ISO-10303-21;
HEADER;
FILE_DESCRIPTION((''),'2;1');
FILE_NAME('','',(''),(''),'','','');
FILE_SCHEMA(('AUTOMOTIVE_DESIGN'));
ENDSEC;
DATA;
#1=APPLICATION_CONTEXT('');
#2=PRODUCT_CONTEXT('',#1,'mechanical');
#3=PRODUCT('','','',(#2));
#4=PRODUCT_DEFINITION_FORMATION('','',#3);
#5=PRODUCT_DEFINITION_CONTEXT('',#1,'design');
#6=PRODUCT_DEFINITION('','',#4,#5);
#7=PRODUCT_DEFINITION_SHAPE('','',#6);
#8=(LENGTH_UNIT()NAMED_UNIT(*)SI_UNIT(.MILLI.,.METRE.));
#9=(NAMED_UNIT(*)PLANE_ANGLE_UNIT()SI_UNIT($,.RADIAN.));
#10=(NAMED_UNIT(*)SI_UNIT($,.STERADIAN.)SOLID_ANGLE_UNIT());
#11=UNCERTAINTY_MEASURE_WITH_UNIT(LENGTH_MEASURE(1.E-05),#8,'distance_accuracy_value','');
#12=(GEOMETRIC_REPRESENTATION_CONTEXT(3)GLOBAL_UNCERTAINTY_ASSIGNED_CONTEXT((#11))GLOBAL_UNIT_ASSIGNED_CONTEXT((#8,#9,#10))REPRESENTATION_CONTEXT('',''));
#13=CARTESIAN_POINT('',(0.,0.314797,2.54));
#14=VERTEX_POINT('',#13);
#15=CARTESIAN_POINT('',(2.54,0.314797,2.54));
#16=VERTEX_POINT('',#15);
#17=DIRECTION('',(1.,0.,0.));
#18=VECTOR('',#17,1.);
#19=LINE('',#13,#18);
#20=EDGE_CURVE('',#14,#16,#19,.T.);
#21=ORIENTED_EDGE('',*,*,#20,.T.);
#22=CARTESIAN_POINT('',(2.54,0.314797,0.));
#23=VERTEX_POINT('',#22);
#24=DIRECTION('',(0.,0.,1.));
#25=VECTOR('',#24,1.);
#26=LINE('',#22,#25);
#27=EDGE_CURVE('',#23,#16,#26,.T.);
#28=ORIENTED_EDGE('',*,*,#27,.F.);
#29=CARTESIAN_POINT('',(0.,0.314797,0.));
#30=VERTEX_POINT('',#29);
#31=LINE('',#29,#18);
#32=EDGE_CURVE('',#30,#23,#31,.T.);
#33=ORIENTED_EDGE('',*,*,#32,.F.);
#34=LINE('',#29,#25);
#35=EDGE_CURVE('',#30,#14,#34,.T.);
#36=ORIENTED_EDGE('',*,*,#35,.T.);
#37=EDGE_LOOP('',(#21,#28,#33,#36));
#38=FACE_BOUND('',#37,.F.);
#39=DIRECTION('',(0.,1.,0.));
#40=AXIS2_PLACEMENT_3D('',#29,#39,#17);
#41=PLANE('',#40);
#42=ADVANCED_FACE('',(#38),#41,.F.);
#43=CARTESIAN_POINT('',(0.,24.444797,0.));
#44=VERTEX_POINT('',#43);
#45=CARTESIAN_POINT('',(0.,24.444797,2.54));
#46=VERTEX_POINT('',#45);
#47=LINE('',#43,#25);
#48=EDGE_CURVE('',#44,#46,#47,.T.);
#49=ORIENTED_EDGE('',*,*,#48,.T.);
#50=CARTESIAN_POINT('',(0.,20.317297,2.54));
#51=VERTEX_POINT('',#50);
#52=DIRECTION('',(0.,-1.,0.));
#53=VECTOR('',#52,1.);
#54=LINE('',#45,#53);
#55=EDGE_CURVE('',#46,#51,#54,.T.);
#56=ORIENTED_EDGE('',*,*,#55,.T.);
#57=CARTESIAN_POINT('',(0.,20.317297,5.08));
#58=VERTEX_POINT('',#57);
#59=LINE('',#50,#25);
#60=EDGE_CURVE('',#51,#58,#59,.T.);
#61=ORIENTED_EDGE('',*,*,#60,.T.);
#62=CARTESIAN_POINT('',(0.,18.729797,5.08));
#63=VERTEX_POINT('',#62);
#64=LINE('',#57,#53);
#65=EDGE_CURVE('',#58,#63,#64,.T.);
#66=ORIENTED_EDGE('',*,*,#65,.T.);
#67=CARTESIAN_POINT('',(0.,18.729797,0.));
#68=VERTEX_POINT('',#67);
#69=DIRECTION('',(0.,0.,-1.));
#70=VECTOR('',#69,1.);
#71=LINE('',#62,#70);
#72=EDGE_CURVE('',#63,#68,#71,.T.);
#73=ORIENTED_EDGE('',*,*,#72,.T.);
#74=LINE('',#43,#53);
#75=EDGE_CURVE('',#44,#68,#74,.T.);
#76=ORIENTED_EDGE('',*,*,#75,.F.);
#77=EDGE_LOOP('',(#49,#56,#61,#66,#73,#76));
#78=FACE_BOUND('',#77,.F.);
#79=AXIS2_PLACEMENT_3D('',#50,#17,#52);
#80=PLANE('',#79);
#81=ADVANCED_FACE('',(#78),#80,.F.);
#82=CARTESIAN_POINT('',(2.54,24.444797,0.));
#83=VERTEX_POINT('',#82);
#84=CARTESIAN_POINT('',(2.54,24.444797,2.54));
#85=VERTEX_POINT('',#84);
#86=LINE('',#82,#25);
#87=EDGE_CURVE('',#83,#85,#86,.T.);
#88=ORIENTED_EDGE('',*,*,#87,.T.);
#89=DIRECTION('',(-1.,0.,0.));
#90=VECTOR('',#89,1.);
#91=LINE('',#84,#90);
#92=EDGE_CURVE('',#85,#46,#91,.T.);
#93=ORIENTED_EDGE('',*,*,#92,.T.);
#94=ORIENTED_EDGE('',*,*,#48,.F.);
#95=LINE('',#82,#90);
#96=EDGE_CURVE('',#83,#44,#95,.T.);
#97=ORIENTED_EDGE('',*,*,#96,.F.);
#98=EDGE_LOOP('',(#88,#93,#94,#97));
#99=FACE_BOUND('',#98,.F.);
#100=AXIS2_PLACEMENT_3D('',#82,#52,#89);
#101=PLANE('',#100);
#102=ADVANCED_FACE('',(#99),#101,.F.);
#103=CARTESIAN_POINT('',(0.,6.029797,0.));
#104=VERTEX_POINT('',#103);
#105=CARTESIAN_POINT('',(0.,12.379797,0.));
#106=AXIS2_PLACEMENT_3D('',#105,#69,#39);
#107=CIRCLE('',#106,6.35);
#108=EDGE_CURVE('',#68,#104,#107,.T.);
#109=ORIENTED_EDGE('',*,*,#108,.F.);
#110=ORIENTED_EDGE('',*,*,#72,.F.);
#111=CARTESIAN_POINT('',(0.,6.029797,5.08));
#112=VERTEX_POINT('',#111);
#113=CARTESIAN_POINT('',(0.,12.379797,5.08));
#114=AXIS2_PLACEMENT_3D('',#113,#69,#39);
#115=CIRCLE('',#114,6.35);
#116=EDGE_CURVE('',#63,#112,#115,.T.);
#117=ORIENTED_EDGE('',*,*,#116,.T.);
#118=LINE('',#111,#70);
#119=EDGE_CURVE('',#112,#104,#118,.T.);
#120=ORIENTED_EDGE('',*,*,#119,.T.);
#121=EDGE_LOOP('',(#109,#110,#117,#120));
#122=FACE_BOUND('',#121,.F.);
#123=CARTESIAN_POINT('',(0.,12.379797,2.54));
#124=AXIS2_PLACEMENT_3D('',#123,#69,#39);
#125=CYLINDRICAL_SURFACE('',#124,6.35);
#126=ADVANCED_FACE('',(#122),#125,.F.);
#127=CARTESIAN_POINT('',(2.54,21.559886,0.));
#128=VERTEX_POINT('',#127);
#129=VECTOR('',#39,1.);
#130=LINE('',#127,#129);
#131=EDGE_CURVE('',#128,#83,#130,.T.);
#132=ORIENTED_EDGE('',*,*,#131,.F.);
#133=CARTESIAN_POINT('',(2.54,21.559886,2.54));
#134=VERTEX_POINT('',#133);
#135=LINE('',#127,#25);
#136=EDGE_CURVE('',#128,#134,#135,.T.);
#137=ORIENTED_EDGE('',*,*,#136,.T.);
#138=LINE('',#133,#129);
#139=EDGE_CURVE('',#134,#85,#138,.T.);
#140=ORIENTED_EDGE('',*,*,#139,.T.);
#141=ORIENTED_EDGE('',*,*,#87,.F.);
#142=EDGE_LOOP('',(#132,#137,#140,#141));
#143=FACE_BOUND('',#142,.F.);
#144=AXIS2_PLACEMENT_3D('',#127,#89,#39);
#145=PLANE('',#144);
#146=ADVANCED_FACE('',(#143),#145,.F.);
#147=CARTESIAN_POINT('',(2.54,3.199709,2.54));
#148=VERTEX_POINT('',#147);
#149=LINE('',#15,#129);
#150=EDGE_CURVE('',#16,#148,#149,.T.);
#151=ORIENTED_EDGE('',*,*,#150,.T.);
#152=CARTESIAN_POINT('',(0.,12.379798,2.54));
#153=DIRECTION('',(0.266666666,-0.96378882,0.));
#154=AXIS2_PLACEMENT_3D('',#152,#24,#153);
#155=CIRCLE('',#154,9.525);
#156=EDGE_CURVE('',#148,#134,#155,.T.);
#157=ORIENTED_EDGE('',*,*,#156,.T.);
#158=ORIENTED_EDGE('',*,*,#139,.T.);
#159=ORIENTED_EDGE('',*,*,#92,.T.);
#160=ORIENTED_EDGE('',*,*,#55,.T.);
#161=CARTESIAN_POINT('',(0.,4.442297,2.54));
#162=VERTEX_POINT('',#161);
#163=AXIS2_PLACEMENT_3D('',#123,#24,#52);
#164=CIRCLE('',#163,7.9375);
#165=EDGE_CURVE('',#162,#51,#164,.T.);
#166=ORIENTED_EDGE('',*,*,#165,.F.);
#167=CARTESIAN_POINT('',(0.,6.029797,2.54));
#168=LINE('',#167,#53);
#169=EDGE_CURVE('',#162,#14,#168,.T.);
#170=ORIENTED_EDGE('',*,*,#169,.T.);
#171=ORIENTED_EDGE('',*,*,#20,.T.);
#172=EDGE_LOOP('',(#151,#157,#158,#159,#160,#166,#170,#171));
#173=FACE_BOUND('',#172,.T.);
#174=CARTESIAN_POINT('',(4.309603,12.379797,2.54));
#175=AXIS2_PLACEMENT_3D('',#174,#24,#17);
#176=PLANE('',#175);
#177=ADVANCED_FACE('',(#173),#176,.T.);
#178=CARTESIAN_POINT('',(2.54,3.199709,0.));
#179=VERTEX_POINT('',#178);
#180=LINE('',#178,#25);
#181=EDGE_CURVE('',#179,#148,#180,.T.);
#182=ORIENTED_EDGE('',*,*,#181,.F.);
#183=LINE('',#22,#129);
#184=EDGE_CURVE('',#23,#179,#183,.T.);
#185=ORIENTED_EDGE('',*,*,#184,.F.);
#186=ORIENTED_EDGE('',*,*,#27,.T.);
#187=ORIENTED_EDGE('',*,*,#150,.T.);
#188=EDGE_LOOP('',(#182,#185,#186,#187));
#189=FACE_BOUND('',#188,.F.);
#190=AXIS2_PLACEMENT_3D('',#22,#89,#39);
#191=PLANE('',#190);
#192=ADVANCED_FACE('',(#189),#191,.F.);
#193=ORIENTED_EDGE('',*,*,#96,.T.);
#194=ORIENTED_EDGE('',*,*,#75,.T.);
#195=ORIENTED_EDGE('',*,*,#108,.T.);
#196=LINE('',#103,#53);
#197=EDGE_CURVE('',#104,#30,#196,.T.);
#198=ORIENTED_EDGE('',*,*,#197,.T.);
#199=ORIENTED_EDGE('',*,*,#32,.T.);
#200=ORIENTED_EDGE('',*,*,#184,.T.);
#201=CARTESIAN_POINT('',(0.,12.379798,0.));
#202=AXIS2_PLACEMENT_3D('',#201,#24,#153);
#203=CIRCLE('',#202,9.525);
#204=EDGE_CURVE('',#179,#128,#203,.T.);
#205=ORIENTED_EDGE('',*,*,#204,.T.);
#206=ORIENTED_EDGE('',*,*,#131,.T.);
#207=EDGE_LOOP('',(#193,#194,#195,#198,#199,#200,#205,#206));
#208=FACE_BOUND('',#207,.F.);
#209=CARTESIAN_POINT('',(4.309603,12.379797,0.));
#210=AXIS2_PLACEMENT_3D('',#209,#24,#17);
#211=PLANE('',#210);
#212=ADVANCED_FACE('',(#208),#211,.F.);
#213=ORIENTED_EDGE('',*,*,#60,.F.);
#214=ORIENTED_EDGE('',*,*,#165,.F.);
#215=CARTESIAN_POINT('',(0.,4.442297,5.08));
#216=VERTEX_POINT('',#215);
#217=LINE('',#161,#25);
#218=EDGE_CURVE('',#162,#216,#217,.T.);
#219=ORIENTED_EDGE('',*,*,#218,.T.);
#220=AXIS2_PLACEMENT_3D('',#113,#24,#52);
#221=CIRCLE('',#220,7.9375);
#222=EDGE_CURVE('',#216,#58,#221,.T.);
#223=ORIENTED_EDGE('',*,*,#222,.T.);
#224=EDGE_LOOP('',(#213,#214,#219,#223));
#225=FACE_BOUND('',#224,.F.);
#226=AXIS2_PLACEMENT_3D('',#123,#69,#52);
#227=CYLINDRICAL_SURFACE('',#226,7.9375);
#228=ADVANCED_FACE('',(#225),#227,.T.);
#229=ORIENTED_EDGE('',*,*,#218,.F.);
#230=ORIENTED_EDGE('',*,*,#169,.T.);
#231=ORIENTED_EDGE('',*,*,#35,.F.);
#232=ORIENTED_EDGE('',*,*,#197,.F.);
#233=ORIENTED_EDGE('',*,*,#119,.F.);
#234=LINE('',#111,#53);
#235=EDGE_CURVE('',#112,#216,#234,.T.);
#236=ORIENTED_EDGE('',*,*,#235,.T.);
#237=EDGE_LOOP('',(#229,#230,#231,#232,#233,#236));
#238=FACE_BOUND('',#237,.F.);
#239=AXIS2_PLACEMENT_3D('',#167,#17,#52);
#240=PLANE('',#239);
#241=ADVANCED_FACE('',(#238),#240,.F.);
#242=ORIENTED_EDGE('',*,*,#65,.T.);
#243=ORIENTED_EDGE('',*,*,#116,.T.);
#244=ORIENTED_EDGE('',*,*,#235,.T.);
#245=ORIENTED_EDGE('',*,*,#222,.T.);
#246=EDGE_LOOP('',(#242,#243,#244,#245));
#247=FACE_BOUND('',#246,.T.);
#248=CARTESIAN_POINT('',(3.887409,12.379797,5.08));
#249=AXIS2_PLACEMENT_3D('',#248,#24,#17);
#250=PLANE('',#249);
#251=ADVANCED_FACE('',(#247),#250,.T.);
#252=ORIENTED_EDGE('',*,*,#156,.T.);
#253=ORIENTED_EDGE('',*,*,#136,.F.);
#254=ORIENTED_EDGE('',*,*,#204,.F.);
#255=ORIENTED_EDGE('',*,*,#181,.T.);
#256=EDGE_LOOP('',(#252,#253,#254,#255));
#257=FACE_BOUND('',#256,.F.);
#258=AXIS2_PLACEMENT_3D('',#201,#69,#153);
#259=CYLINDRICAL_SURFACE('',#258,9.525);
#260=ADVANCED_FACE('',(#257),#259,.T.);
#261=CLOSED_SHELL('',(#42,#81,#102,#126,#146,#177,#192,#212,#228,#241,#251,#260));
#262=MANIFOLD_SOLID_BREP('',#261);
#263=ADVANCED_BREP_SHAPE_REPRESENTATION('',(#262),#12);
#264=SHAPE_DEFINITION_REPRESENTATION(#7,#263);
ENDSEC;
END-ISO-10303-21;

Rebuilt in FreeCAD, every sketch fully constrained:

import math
import FreeCAD as App
import Part
import Sketcher
from FreeCAD import Vector
Q = App.Units.Quantity

doc = App.newDocument("Part")
body = doc.addObject("PartDesign::Body", "Body")

sketch1 = doc.addObject("Sketcher::SketchObject", "Sketch")
body.addObject(sketch1)
sketch1.AttachmentSupport = (doc.XY_Plane, [""])
sketch1.MapMode = "FlatFace"
sketch1.addGeometry([
    Part.LineSegment(Vector(0, 6.029797, 0), Vector(0, 0.314797, 0)),
    Part.LineSegment(Vector(0, 0.314797, 0), Vector(2.54, 0.314797, 0)),
    Part.LineSegment(Vector(2.54, 0.314797, 0), Vector(2.54, 3.199709, 0)),
    Part.ArcOfCircle(Part.Circle(Vector(0, 12.379798, 0), Vector(0, 0, 1), 9.525), math.radians(-74.53399), math.radians(74.53399)),
    Part.LineSegment(Vector(2.54, 21.559886, 0), Vector(2.54, 24.444797, 0)),
    Part.LineSegment(Vector(2.54, 24.444797, 0), Vector(0, 24.444797, 0)),
    Part.LineSegment(Vector(0, 24.444797, 0), Vector(0, 18.729797, 0)),
    Part.ArcOfCircle(Part.Circle(Vector(0, 12.379797, 0), Vector(0, 0, 1), 6.35), math.radians(-90), math.radians(90)),
], False)
sketch1.addConstraint([
    Sketcher.Constraint("Coincident", 0, 2, 1, 1),
    Sketcher.Constraint("Coincident", 1, 2, 2, 1),
    Sketcher.Constraint("Coincident", 2, 2, 3, 1),
    Sketcher.Constraint("Coincident", 3, 2, 4, 1),
    Sketcher.Constraint("Coincident", 4, 2, 5, 1),
    Sketcher.Constraint("Coincident", 5, 2, 6, 1),
    Sketcher.Constraint("Coincident", 6, 2, 7, 2),
    Sketcher.Constraint("Coincident", 7, 1, 0, 1),
    Sketcher.Constraint("Vertical", 0),
    Sketcher.Constraint("Horizontal", 1),
    Sketcher.Constraint("Vertical", 2),
    Sketcher.Constraint("Vertical", 4),
    Sketcher.Constraint("Horizontal", 5),
    Sketcher.Constraint("Vertical", 6),
    Sketcher.Constraint("Coincident", 7, 3, 3, 3),
    Sketcher.Constraint("PointOnObject", 3, 3, -2),
    Sketcher.Constraint("PointOnObject", 0, 2, -2),
    Sketcher.Constraint("PointOnObject", 5, 2, -2),
    Sketcher.Constraint("Vertical", 2, 2, 3, 2),
    Sketcher.Constraint("Equal", 2, 4),
    Sketcher.Constraint("Radius", 7, Q("0.25 in")),
    Sketcher.Constraint("DistanceX", 1, 1, 1, 2, Q("0.1 in")),
    Sketcher.Constraint("Radius", 3, Q("0.375 in")),
    Sketcher.Constraint("DistanceY", 0, 2, 0, 1, Q("0.225 in")),
    Sketcher.Constraint("DistanceY", -1, 1, 2, 2, Q("3.199709 mm")),
])
pad1 = doc.addObject("PartDesign::Pad", "Pad")
body.addObject(pad1)
pad1.Profile = sketch1
pad1.Length = Q("0.1 in")

sketch2 = doc.addObject("Sketcher::SketchObject", "Sketch001")
body.addObject(sketch2)
sketch2.AttachmentSupport = (doc.XY_Plane, [""])
sketch2.MapMode = "FlatFace"
sketch2.AttachmentOffset = App.Placement(Vector(0, 0, 0.1 * 25.4), App.Rotation())
sketch2.addGeometry([
    Part.LineSegment(Vector(0, 6.029797, 0), Vector(0, 4.442297, 0)),
    Part.ArcOfCircle(Part.Circle(Vector(0, 12.379797, 0), Vector(0, 0, 1), 7.9375), math.radians(-90), math.radians(90)),
    Part.LineSegment(Vector(0, 20.317297, 0), Vector(0, 18.729797, 0)),
    Part.ArcOfCircle(Part.Circle(Vector(0, 12.379797, 0), Vector(0, 0, 1), 6.35), math.radians(-90), math.radians(90)),
], False)
sketch2.addConstraint([
    Sketcher.Constraint("Coincident", 0, 2, 1, 1),
    Sketcher.Constraint("Coincident", 1, 2, 2, 1),
    Sketcher.Constraint("Coincident", 2, 2, 3, 2),
    Sketcher.Constraint("Coincident", 3, 1, 0, 1),
    Sketcher.Constraint("Vertical", 0),
    Sketcher.Constraint("Vertical", 2),
    Sketcher.Constraint("Coincident", 3, 3, 1, 3),
    Sketcher.Constraint("PointOnObject", 1, 3, -2),
    Sketcher.Constraint("PointOnObject", 0, 2, -2),
    Sketcher.Constraint("PointOnObject", 1, 2, -2),
    Sketcher.Constraint("Radius", 3, Q("0.25 in")),
    Sketcher.Constraint("Radius", 1, Q("0.3125 in")),
    Sketcher.Constraint("DistanceY", -1, 1, 1, 3, Q("12.379797 mm")),
])
pad2 = doc.addObject("PartDesign::Pad", "Pad001")
body.addObject(pad2)
pad2.Profile = sketch2
pad2.Length = Q("0.1 in")

doc.recompute()
